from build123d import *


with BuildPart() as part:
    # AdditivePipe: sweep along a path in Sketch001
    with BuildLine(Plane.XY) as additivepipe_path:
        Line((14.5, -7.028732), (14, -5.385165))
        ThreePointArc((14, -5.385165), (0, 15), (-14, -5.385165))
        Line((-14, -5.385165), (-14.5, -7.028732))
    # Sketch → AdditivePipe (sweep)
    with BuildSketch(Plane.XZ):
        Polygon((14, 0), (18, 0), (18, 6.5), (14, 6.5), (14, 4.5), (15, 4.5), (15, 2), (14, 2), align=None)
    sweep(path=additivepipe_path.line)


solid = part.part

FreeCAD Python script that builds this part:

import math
import FreeCAD as App
import Part
import Sketcher
from FreeCAD import Vector

doc = App.newDocument("Part")
body = doc.addObject("PartDesign::Body", "Body")

# Sketch on XZ plane
sketch1 = body.newObject("Sketcher::SketchObject", "Sketch")
sketch1.AttachmentSupport = (doc.getObject("XZ_Plane"), [""])
sketch1.MapMode = "FlatFace"
sketch1.addGeometry([
    Part.LineSegment(Vector(14, 0, 0), Vector(18, 0, 0)),  # 0
    Part.LineSegment(Vector(18, 0, 0), Vector(18, 6.5, 0)),  # 1
    Part.LineSegment(Vector(18, 6.5, 0), Vector(14, 6.5, 0)),  # 2
    Part.LineSegment(Vector(14, 6.5, 0), Vector(14, 4.5, 0)),  # 3
    Part.LineSegment(Vector(14, 4.5, 0), Vector(15, 4.5, 0)),  # 4
    Part.LineSegment(Vector(15, 4.5, 0), Vector(15, 2, 0)),  # 5
    Part.LineSegment(Vector(15, 2, 0), Vector(14, 2, 0)),  # 6
    Part.LineSegment(Vector(14, 2, 0), Vector(14, 0, 0)),  # 7
], False)
sketch1.addConstraint([
    Sketcher.Constraint("Coincident", 0, 2, 1, 1),
    Sketcher.Constraint("Coincident", 1, 2, 2, 1),
    Sketcher.Constraint("Coincident", 2, 2, 3, 1),
    Sketcher.Constraint("Coincident", 3, 2, 4, 1),
    Sketcher.Constraint("Coincident", 4, 2, 5, 1),
    Sketcher.Constraint("Coincident", 5, 2, 6, 1),
    Sketcher.Constraint("Coincident", 6, 2, 7, 1),
    Sketcher.Constraint("Coincident", 7, 2, 0, 1),
    Sketcher.Constraint("Horizontal", 0),
    Sketcher.Constraint("Vertical", 1),
    Sketcher.Constraint("Horizontal", 2),
    Sketcher.Constraint("Vertical", 3),
    Sketcher.Constraint("Horizontal", 4),
    Sketcher.Constraint("Vertical", 5),
    Sketcher.Constraint("Horizontal", 6),
    Sketcher.Constraint("Vertical", 7),
    Sketcher.Constraint("PointOnObject", 0, 2, -1),
    Sketcher.Constraint("Vertical", 3, 2, 6, 2),
    Sketcher.Constraint("Equal", 3, 7),
    Sketcher.Constraint("DistanceX", 0, 1, 0, 2, 4.0),
    Sketcher.Constraint("DistanceX", 4, 1, 4, 2, 1.0),
    Sketcher.Constraint("DistanceY", 3, 2, 3, 1, 2.0),
    Sketcher.Constraint("DistanceY", 1, 1, 1, 2, 6.5),
    Sketcher.Constraint("DistanceX", -1, 1, 0, 2, 18.0),
])

# Sketch on XY plane
sketch2 = body.newObject("Sketcher::SketchObject", "Sketch001")
sketch2.AttachmentSupport = (doc.getObject("XY_Plane"), [""])
sketch2.MapMode = "FlatFace"
sketch2.addGeometry([
    Part.LineSegment(Vector(14.5, -7, 0), Vector(14, -5.4, 0)),
    Part.ArcOfCircle(Part.Circle(Vector(0, 0, 0), Vector(0, 0, 1), 15), math.radians(-21), math.radians(201)),
    Part.LineSegment(Vector(-14, -5.4, 0), Vector(-14.5, -7, 0)),
], False)
sketch2.addConstraint([
    Sketcher.Constraint("Coincident", 0, 2, 1, 1),
    Sketcher.Constraint("Coincident", 1, 2, 2, 1),
    Sketcher.Constraint("Coincident", 1, 3, -1, 1),
    Sketcher.Constraint("Symmetric", 0, 1, 2, 2, -2),
    Sketcher.Constraint("Horizontal", 0, 2, 1, 2),
    Sketcher.Constraint("Radius", 1, 15.0),
    Sketcher.Constraint("DistanceX", -1, 1, 0, 2, 14.0),
    Sketcher.Constraint("DistanceX", 2, 2, 0, 1, 29.0),
    Sketcher.Constraint("Distance", 0, 1.717938),
])
doc.recompute()

additivepipe = body.newObject("PartDesign::AdditivePipe", "AdditivePipe")
additivepipe.Profile = sketch1
additivepipe.Spine = (sketch2, ["Edge1", "Edge2", "Edge3"])

doc.recompute()
